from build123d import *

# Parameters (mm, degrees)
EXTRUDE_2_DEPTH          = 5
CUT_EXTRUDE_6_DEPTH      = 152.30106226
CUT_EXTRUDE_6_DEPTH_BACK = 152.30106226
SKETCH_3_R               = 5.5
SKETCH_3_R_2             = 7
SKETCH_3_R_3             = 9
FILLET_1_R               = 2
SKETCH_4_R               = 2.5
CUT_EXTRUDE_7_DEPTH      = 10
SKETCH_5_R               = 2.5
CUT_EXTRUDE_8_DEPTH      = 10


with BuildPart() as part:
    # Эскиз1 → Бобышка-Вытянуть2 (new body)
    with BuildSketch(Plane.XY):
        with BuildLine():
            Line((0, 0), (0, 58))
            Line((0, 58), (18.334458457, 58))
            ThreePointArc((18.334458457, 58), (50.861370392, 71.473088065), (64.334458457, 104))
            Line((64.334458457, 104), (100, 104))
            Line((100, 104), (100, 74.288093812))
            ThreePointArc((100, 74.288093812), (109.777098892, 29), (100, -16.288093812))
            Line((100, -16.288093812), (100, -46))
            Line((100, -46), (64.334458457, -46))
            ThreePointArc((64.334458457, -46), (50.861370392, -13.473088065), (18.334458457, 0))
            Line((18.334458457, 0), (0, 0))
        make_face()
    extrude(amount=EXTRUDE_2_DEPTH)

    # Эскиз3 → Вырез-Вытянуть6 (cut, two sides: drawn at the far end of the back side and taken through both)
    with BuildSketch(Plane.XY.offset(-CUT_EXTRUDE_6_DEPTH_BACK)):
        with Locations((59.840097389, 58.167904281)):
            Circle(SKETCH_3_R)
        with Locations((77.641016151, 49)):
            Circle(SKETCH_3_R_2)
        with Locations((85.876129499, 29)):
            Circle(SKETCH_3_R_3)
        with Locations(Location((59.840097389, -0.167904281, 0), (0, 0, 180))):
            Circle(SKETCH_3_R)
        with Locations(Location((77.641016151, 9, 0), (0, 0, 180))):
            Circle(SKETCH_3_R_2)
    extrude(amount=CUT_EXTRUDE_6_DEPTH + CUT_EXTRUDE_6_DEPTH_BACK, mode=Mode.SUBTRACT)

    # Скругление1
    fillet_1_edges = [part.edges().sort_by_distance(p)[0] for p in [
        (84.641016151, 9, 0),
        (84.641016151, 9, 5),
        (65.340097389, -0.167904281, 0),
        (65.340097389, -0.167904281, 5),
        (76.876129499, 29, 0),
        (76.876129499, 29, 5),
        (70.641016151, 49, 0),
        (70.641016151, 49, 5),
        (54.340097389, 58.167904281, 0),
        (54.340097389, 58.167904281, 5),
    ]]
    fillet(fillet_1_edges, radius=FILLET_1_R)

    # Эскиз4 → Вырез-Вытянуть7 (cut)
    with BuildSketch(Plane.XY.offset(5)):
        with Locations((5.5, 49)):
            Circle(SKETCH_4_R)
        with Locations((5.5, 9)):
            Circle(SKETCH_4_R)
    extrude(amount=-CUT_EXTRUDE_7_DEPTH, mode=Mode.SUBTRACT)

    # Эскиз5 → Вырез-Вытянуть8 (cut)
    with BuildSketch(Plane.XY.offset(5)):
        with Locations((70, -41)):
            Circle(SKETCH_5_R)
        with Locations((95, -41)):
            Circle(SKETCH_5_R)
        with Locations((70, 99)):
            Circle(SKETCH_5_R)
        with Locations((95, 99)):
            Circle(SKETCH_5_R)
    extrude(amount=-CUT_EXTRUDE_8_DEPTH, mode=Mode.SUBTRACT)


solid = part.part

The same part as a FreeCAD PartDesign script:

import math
import FreeCAD as App
import Part
import Sketcher
from FreeCAD import Vector


def edges_at(feature, points):
    """Names of the edges that pass closest to the given points."""
    edges = feature.Shape.Edges
    near = lambda p: min(range(len(edges)), key=lambda i: edges[i].distToShape(Part.Vertex(*p))[0])
    return sorted({f"Edge{near(p) + 1}" for p in points})

doc = App.newDocument("Part")
params = doc.addObject("Spreadsheet::Sheet", "Params")
for row, (alias, value) in enumerate([
    ("sketch1_radius", "46 mm"),
    ("sketch1_height", "58 mm"),
    ("pad1_length", "5 mm"),
    ("sketch2_diameter", "11 mm"),
    ("sketch2_diameter2", "14 mm"),
    ("sketch2_diameter3", "18 mm"),
    ("fillet_radius", "2 mm"),
    ("sketch3_diameter", "5 mm"),
    ("pocket2_length", "10 mm"),
    ("sketch4_diameter", "5 mm"),
    ("pocket3_length", "10 mm"),
], start=1):
    params.set(f"A{row}", alias)
    params.set(f"B{row}", "=" + value)
    params.setAlias(f"B{row}", alias)

body = doc.addObject("PartDesign::Body", "Body")

# Sketch on XY plane
sketch1 = body.newObject("Sketcher::SketchObject", "Sketch")
sketch1.AttachmentSupport = (doc.getObject("XY_Plane"), [""])
sketch1.MapMode = "FlatFace"
sketch1.addGeometry([
    Part.LineSegment(Vector(0, 58, 0), Vector(0, 0, 0)),  # 0
    Part.LineSegment(Vector(0, 0, 0), Vector(18, 0, 0)),  # 1
    Part.ArcOfCircle(Part.Circle(Vector(18, -46, 0), Vector(0, 0, 1), 46), math.radians(0), math.radians(90)),  # 2
    Part.LineSegment(Vector(64, -46, 0), Vector(100, -46, 0)),  # 3
    Part.LineSegment(Vector(100, -46, 0), Vector(100, -16, 0)),  # 4
    Part.ArcOfCircle(Part.Circle(Vector(0, 29, 0), Vector(0, 0, 1), 110), math.radians(-24), math.radians(24)),  # 5
    Part.LineSegment(Vector(100, 74, 0), Vector(100, 104, 0)),  # 6
    Part.LineSegment(Vector(100, 104, 0), Vector(64, 104, 0)),  # 7
    Part.ArcOfCircle(Part.Circle(Vector(18, 104, 0), Vector(0, 0, 1), 46), math.radians(-90), math.radians(0)),  # 8
    Part.LineSegment(Vector(18, 58, 0), Vector(0, 58, 0)),  # 9
], False)
sketch1.addConstraint([
    Sketcher.Constraint("Coincident", 0, 2, 1, 1),
    Sketcher.Constraint("Tangent", 1, 2, 2, 2),
    Sketcher.Constraint("Coincident", 2, 1, 3, 1),
    Sketcher.Constraint("Coincident", 3, 2, 4, 1),
    Sketcher.Constraint("Coincident", 4, 2, 5, 1),
    Sketcher.Constraint("Coincident", 5, 2, 6, 1),
    Sketcher.Constraint("Coincident", 6, 2, 7, 1),
    Sketcher.Constraint("Coincident", 7, 2, 8, 2),
    Sketcher.Constraint("Tangent", 8, 1, 9, 1),
    Sketcher.Constraint("Coincident", 9, 2, 0, 1),
    Sketcher.Constraint("Vertical", 0),
    Sketcher.Constraint("Horizontal", 1),
    Sketcher.Constraint("Horizontal", 3),
    Sketcher.Constraint("Vertical", 4),
    Sketcher.Constraint("Vertical", 6),
    Sketcher.Constraint("Horizontal", 7),
    Sketcher.Constraint("Horizontal", 9),
    Sketcher.Constraint("Coincident", 0, 2, -1, 1),
    Sketcher.Constraint("Equal", 2, 8),
    Sketcher.Constraint("PointOnObject", 5, 3, -2),
    Sketcher.Constraint("Horizontal", 8, 3, 6, 2),
    Sketcher.Constraint("Vertical", 2, 3, 8, 3),
    Sketcher.Constraint("Vertical", 4, 2, 5, 2),
    Sketcher.Constraint("Equal", 4, 6),
    Sketcher.Constraint("Radius", 2, 46.0),
    Sketcher.Constraint("DistanceY", 0, 2, 0, 1, 58.0),
    Sketcher.Constraint("DistanceY", -1, 1, 5, 3, 29.0),
    Sketcher.Constraint("DistanceX", -1, 1, 3, 2, 100.0),
    Sketcher.Constraint("Radius", 5, 109.777099),
    Sketcher.Constraint("DistanceX", 1, 1, 1, 2, 18.334458),
])
sketch1.setExpression("Constraints[24]", "Params.sketch1_radius")
sketch1.setExpression("Constraints[25]", "Params.sketch1_height")
pad1 = body.newObject("PartDesign::Pad", "Pad")
pad1.Profile = sketch1
pad1.setExpression("Length", "Params.pad1_length")

# Sketch on XY plane
sketch2 = body.newObject("Sketcher::SketchObject", "Sketch001")
sketch2.AttachmentSupport = (doc.getObject("XY_Plane"), [""])
sketch2.MapMode = "FlatFace"
sketch2.addGeometry([
    Part.Circle(Vector(60, 58, 0), Vector(0, 0, 1), 6),  # 0
    Part.Circle(Vector(78, 49, 0), Vector(0, 0, 1), 7),  # 1
    Part.Circle(Vector(86, 29, 0), Vector(0, 0, 1), 9),  # 2
    Part.Circle(Vector(60, 0, 0), Vector(0, 0, 1), 6),  # 3
    Part.Circle(Vector(78, 9, 0), Vector(0, 0, 1), 7),  # 4
], False)
sketch2.addConstraint([
    Sketcher.Constraint("Equal", 0, 3),
    Sketcher.Constraint("Equal", 1, 4),
    Sketcher.Constraint("Vertical", 0, 3, 3, 3),
    Sketcher.Constraint("Vertical", 1, 3, 4, 3),
    Sketcher.Constraint("Diameter", 0, 11.0),
    Sketcher.Constraint("Diameter", 1, 14.0),
    Sketcher.Constraint("Diameter", 2, 18.0),
    Sketcher.Constraint("DistanceY", -1, 1, 1, 3, 49.0),
    Sketcher.Constraint("DistanceY", -1, 1, 2, 3, 29.0),
    Sketcher.Constraint("DistanceY", -1, 1, 4, 3, 9.0),
    Sketcher.Constraint("DistanceX", -1, 1, 2, 3, 85.876129),
    Sketcher.Constraint("DistanceX", 0, 3, 1, 3, 17.800919),
    Sketcher.Constraint("DistanceY", 3, 3, 0, 3, 58.335809),
    Sketcher.Constraint("DistanceX", -1, 1, 0, 3, 59.840097),
    Sketcher.Constraint("DistanceY", -1, 1, 0, 3, 58.167904),
])
sketch2.setExpression("Constraints[4]", "Params.sketch2_diameter")
sketch2.setExpression("Constraints[5]", "Params.sketch2_diameter2")
sketch2.setExpression("Constraints[6]", "Params.sketch2_diameter3")
pocket1 = body.newObject("PartDesign::Pocket", "Pocket")
pocket1.Profile = sketch2
pocket1.Type = "ThroughAll"
pocket1.Midplane = True
doc.recompute()

fillet = body.newObject("PartDesign::Fillet", "Fillet")
fillet.Base = (pocket1, edges_at(pocket1, [
    (84.641, 9, 0),
    (84.641, 9, 5),
    (65.34, -0.168, 0),
    (65.34, -0.168, 5),
    (76.876, 29, 0),
    (76.876, 29, 5),
    (70.641, 49, 0),
    (70.641, 49, 5),
    (54.34, 58.168, 0),
    (54.34, 58.168, 5),
]))
fillet.setExpression("Radius", "Params.fillet_radius")

# Sketch on XY plane
sketch3 = body.newObject("Sketcher::SketchObject", "Sketch002")
sketch3.AttachmentSupport = (doc.getObject("XY_Plane"), [""])
sketch3.MapMode = "FlatFace"
sketch3.AttachmentOffset = App.Placement(Vector(0, 0, 5), App.Rotation())
sketch3.addGeometry([
    Part.Circle(Vector(5.5, 49, 0), Vector(0, 0, 1), 2.5),
    Part.Circle(Vector(5.5, 9, 0), Vector(0, 0, 1), 2.5),
], False)
sketch3.addConstraint([
    Sketcher.Constraint("Equal", 0, 1),
    Sketcher.Constraint("Vertical", 0, 3, 1, 3),
    Sketcher.Constraint("Diameter", 0, 5.0),
    Sketcher.Constraint("DistanceY", -1, 1, 0, 3, 49.0),
    Sketcher.Constraint("DistanceY", -1, 1, 1, 3, 9.0),
    Sketcher.Constraint("DistanceX", -1, 1, 0, 3, 5.5),
])
sketch3.setExpression("Constraints[2]", "Params.sketch3_diameter")
pocket2 = body.newObject("PartDesign::Pocket", "Pocket001")
pocket2.Profile = sketch3
pocket2.setExpression("Length", "Params.pocket2_length")

# Sketch on XY plane
sketch4 = body.newObject("Sketcher::SketchObject", "Sketch003")
sketch4.AttachmentSupport = (doc.getObject("XY_Plane"), [""])
sketch4.MapMode = "FlatFace"
sketch4.AttachmentOffset = App.Placement(Vector(0, 0, 5), App.Rotation())
sketch4.addGeometry([
    Part.Circle(Vector(70, -41, 0), Vector(0, 0, 1), 2.5),
    Part.Circle(Vector(95, -41, 0), Vector(0, 0, 1), 2.5),
    Part.Circle(Vector(70, 99, 0), Vector(0, 0, 1), 2.5),
    Part.Circle(Vector(95, 99, 0), Vector(0, 0, 1), 2.5),
], False)
sketch4.addConstraint([
    Sketcher.Constraint("Equal", 0, 1),
    Sketcher.Constraint("Equal", 1, 2),
    Sketcher.Constraint("Equal", 2, 3),
    Sketcher.Constraint("Horizontal", 0, 3, 1, 3),
    Sketcher.Constraint("Horizontal", 2, 3, 3, 3),
    Sketcher.Constraint("Vertical", 0, 3, 2, 3),
    Sketcher.Constraint("Vertical", 1, 3, 3, 3),
    Sketcher.Constraint("Diameter", 0, 5.0),
    Sketcher.Constraint("DistanceX", -1, 1, 0, 3, 70.0),
    Sketcher.Constraint("DistanceY", 0, 3, -1, 1, 41.0),
    Sketcher.Constraint("DistanceX", -1, 1, 1, 3, 95.0),
    Sketcher.Constraint("DistanceY", -1, 1, 2, 3, 99.0),
])
sketch4.setExpression("Constraints[7]", "Params.sketch4_diameter")
pocket3 = body.newObject("PartDesign::Pocket", "Pocket002")
pocket3.Profile = sketch4
pocket3.setExpression("Length", "Params.pocket3_length")

doc.recompute()
